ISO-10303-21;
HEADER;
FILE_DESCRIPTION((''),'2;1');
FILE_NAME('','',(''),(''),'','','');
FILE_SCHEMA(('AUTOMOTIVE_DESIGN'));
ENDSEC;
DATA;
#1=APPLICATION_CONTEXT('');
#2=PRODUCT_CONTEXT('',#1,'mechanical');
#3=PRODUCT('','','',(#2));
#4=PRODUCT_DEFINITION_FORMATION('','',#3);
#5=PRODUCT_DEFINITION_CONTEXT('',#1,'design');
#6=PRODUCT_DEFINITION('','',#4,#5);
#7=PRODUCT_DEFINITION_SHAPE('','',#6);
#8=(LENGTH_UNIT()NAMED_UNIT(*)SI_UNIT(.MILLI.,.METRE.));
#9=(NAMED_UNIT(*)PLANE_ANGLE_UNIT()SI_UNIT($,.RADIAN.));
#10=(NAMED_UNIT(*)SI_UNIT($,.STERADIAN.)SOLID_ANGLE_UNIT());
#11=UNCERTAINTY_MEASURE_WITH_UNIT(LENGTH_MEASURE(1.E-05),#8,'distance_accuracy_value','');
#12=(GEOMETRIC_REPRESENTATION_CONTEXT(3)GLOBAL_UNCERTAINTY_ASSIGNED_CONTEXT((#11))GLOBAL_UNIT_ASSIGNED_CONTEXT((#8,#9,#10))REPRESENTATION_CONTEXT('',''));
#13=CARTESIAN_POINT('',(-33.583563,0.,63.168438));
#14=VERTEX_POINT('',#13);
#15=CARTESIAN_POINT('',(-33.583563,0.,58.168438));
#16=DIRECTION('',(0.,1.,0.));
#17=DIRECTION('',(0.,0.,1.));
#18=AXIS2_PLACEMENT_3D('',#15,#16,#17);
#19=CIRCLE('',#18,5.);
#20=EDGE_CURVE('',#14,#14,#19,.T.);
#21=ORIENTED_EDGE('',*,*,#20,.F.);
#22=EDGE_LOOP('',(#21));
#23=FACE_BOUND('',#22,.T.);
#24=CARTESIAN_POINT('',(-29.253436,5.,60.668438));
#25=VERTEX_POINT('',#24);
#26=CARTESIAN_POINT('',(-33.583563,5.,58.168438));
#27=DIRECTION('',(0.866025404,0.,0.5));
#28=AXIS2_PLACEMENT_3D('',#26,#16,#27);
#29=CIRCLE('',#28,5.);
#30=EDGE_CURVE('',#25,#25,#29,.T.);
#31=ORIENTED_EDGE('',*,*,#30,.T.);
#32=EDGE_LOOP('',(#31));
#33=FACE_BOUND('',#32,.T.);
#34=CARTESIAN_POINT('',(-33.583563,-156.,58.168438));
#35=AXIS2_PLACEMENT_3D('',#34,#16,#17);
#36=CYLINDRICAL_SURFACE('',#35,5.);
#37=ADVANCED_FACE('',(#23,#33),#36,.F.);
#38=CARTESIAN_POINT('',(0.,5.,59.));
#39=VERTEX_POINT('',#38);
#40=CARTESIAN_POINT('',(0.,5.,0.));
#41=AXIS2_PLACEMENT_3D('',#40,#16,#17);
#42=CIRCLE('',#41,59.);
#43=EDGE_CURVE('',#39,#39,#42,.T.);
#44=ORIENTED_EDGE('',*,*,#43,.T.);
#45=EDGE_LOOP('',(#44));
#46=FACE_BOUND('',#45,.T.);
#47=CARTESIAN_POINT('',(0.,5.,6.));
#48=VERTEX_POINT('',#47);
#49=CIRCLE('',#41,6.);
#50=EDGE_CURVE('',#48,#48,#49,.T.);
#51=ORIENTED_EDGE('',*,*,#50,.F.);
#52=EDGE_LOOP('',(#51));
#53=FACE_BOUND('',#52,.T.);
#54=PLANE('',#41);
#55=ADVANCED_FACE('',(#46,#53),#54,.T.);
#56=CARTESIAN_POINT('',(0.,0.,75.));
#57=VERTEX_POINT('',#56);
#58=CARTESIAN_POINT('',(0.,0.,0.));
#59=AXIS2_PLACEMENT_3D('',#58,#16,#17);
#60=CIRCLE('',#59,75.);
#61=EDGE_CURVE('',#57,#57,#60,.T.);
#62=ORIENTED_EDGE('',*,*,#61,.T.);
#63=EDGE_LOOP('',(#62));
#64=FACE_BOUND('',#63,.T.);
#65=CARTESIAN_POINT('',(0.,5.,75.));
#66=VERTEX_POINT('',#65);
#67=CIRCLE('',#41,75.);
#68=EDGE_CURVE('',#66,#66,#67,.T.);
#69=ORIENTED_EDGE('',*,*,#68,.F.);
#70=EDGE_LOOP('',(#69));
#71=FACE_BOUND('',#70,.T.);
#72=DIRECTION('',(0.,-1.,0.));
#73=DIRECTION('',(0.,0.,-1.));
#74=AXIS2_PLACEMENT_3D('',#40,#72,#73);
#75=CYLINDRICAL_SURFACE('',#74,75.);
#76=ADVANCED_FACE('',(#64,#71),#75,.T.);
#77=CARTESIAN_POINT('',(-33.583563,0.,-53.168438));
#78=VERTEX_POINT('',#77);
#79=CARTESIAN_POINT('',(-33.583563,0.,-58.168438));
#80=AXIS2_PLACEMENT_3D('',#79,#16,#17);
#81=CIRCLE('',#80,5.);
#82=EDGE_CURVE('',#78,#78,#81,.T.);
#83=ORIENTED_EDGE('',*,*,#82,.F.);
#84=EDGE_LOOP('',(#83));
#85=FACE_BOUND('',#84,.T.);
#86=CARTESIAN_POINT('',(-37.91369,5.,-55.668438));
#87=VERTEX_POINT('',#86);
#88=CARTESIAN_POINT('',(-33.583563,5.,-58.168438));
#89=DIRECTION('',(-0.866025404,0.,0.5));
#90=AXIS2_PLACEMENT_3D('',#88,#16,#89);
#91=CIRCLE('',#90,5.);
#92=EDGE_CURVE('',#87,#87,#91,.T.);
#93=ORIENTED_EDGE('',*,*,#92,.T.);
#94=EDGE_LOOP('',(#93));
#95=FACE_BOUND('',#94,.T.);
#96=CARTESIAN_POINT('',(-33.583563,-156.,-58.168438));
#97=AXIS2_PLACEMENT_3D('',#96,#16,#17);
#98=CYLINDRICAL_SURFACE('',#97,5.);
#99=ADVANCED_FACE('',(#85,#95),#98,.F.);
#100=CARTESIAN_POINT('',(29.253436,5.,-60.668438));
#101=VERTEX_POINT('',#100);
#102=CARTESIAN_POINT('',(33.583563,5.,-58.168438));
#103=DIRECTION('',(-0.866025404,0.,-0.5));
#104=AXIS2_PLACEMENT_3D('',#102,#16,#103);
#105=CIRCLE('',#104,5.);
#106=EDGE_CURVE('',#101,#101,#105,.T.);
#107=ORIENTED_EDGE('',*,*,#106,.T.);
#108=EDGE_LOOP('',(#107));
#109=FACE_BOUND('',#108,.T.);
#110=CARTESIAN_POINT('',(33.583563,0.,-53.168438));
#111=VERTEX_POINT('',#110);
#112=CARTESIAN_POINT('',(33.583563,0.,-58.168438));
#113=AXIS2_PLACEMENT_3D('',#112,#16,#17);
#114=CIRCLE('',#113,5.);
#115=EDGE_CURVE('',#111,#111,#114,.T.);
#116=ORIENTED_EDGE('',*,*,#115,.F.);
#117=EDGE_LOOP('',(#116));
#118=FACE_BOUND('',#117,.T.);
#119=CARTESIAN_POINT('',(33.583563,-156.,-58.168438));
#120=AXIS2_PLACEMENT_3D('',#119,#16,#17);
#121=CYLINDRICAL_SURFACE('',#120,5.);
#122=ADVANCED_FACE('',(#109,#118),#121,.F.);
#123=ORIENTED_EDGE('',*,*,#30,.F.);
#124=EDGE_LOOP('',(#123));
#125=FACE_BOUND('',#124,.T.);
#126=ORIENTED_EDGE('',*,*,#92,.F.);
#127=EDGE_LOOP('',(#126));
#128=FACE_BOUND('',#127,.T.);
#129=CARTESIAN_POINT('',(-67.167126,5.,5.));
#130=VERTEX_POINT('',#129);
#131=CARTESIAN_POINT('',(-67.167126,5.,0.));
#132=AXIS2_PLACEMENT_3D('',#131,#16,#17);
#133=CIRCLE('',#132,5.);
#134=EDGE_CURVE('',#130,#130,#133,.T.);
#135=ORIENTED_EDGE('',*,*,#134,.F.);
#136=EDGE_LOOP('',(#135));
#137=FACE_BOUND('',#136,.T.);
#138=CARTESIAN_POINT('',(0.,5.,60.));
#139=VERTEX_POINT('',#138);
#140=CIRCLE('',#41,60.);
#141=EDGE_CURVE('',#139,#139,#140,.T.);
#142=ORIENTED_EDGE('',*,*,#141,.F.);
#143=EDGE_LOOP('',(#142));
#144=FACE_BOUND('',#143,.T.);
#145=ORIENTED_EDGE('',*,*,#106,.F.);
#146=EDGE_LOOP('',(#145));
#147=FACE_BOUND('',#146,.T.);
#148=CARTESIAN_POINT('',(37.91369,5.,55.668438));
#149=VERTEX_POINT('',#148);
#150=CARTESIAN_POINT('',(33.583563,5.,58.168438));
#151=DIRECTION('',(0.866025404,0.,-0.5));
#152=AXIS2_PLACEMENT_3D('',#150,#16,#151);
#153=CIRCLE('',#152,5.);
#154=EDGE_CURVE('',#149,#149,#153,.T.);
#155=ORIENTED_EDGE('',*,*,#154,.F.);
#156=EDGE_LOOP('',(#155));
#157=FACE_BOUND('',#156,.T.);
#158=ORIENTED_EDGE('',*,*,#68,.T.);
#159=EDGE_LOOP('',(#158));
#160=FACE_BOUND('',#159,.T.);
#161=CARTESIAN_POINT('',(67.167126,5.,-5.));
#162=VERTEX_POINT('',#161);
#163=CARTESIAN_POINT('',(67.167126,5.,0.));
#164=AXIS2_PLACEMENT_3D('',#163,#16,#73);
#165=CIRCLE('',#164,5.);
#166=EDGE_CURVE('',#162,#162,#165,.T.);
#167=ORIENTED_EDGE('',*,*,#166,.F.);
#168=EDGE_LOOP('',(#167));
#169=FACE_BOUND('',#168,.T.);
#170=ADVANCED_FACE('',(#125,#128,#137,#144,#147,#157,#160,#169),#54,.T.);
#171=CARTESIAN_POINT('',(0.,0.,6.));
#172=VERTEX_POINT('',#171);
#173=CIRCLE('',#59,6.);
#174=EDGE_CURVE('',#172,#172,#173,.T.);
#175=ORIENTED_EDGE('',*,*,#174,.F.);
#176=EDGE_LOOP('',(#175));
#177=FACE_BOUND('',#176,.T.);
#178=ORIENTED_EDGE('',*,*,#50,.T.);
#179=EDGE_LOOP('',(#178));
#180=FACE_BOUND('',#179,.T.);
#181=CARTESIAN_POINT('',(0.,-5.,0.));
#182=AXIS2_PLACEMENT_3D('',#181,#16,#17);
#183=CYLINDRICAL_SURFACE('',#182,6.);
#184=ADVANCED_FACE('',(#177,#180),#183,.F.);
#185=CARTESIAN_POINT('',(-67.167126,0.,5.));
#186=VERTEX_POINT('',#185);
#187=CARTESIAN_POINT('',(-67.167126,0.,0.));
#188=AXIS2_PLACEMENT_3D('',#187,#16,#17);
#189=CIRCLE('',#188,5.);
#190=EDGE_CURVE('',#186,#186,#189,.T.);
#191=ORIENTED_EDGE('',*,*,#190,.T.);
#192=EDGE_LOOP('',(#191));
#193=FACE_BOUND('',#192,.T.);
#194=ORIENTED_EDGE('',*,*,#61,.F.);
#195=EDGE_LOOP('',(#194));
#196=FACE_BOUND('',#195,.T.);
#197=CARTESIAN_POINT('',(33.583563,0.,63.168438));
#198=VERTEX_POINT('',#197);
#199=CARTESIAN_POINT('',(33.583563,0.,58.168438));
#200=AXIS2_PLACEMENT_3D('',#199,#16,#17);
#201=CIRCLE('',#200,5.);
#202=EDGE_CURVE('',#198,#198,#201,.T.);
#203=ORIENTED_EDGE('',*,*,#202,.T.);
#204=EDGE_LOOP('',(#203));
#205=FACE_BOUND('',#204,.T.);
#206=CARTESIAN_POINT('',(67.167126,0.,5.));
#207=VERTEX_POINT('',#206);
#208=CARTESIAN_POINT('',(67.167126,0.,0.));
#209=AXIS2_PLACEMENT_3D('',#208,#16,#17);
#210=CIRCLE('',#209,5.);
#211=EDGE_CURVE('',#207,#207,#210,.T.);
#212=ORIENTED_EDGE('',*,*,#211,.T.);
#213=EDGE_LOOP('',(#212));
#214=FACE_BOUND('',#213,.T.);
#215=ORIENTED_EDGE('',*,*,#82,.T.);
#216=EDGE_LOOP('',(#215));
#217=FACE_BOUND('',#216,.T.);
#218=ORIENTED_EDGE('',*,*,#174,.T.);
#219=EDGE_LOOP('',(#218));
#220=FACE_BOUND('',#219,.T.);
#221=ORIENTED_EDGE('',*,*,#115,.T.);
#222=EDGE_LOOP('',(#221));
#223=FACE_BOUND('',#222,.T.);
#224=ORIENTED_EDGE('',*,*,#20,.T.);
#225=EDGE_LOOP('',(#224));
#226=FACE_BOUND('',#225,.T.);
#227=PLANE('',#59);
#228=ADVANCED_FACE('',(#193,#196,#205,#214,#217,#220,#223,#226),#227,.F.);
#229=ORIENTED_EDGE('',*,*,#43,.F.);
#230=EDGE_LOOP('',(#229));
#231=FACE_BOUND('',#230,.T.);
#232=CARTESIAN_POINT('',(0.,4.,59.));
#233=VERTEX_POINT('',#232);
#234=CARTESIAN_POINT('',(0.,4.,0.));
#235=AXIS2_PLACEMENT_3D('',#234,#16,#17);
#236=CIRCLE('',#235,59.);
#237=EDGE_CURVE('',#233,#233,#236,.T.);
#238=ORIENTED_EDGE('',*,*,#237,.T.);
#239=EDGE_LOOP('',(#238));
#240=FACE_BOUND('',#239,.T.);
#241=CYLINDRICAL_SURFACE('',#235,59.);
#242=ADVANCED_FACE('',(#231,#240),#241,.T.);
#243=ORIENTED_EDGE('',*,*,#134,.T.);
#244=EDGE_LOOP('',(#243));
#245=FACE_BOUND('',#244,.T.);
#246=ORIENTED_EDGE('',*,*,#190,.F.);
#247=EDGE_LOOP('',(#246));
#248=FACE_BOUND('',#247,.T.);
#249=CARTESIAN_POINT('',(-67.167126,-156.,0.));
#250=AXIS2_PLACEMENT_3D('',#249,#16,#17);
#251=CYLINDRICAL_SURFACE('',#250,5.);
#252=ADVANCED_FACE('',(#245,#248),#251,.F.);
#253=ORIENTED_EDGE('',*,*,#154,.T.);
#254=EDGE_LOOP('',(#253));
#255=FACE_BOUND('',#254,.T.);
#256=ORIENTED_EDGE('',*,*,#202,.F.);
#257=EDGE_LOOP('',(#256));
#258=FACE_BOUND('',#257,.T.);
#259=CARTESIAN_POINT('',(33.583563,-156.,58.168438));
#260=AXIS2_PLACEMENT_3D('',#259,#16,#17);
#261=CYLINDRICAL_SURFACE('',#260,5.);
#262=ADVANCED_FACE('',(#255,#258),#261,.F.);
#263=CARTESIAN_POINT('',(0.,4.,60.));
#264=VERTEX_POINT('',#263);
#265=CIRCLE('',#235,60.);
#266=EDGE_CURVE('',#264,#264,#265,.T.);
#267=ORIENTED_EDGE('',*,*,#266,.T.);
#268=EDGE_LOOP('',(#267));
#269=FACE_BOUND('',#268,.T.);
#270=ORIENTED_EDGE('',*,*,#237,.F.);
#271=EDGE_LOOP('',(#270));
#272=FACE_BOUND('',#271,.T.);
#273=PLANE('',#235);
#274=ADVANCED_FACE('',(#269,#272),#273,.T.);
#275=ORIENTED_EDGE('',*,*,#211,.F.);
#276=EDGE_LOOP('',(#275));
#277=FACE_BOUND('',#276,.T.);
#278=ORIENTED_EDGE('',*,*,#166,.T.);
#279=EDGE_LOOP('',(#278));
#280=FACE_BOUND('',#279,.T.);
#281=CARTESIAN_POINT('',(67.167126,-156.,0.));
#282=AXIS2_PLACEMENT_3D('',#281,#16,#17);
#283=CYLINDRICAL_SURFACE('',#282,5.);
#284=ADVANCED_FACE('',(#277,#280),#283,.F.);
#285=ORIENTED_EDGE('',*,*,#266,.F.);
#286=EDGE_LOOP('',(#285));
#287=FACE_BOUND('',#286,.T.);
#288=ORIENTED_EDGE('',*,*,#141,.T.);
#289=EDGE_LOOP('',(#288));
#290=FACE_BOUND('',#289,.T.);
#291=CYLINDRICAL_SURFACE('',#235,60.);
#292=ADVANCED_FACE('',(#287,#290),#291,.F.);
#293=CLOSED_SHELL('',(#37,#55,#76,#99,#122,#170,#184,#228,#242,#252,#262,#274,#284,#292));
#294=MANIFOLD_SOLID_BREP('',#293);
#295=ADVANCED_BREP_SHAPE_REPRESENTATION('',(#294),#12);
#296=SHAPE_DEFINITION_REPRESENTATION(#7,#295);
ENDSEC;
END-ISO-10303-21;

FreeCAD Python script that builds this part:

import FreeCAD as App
import Part
import Sketcher
from FreeCAD import Vector

doc = App.newDocument("Part")
params = doc.addObject("Spreadsheet::Sheet", "Params")
for row, (alias, value) in enumerate([
    ("sketch1_diameter", "150 mm"),
    ("pad1_length", "5 mm"),
    ("sketch2_diameter", "120 mm"),
    ("sketch2_diameter2", "118 mm"),
    ("pocket1_length", "1 mm"),
    ("sketch3_diameter", "10 mm"),
    ("pocket2_length", "161 mm"),
    ("sketch4_diameter", "12 mm"),
    ("pocket3_length", "10 mm"),
], start=1):
    params.set(f"A{row}", alias)
    params.set(f"B{row}", "=" + value)
    params.setAlias(f"B{row}", alias)

body = doc.addObject("PartDesign::Body", "Body")

sketch1 = doc.addObject("Sketcher::SketchObject", "Sketch")
body.addObject(sketch1)
sketch1.AttachmentSupport = (doc.XZ_Plane, [""])
sketch1.MapMode = "FlatFace"
sketch1.addGeometry(Part.Circle(Vector(0, 0, 0), Vector(0, 0, 1), 75), False)
sketch1.addConstraint([
    Sketcher.Constraint("Coincident", 0, 3, -1, 1),
    Sketcher.Constraint("Diameter", 0, 150.0),
])
sketch1.setExpression("Constraints[1]", "Params.sketch1_diameter")
pad1 = doc.addObject("PartDesign::Pad", "Pad")
body.addObject(pad1)
pad1.Profile = sketch1
pad1.setExpression("Length", "Params.pad1_length")
pad1.Reversed = True

sketch2 = doc.addObject("Sketcher::SketchObject", "Sketch001")
body.addObject(sketch2)
sketch2.AttachmentSupport = (doc.XZ_Plane, [""])
sketch2.MapMode = "FlatFace"
sketch2.AttachmentOffset = App.Placement(Vector(0, 0, -5), App.Rotation())
sketch2.addGeometry([
    Part.Circle(Vector(0, 0, 0), Vector(0, 0, 1), 60),
    Part.Circle(Vector(0, 0, 0), Vector(0, 0, 1), 59),
], False)
sketch2.addConstraint([
    Sketcher.Constraint("Coincident", 0, 3, -1, 1),
    Sketcher.Constraint("Coincident", 1, 3, -1, 1),
    Sketcher.Constraint("Diameter", 0, 120.0),
    Sketcher.Constraint("Diameter", 1, 118.0),
])
sketch2.setExpression("Constraints[2]", "Params.sketch2_diameter")
sketch2.setExpression("Constraints[3]", "Params.sketch2_diameter2")
pocket1 = doc.addObject("PartDesign::Pocket", "Pocket")
body.addObject(pocket1)
pocket1.Profile = sketch2
pocket1.setExpression("Length", "Params.pocket1_length")
pocket1.Reversed = True

sketch3 = doc.addObject("Sketcher::SketchObject", "Sketch002")
body.addObject(sketch3)
sketch3.AttachmentSupport = (doc.XZ_Plane, [""])
sketch3.MapMode = "FlatFace"
sketch3.AttachmentOffset = App.Placement(Vector(0, 0, -5), App.Rotation())
sketch3.addGeometry(Part.Circle(Vector(-67, 0, 0), Vector(0, 0, 1), 5), False)
sketch3.addConstraint([
    Sketcher.Constraint("PointOnObject", 0, 3, -1),
    Sketcher.Constraint("Diameter", 0, 10.0),
    Sketcher.Constraint("DistanceX", 0, 3, -1, 1, 67.167126),
])
sketch3.setExpression("Constraints[1]", "Params.sketch3_diameter")
pocket2 = doc.addObject("PartDesign::Pocket", "Pocket001")
body.addObject(pocket2)
pocket2.Profile = sketch3
pocket2.setExpression("Length", "Params.pocket2_length")
pocket2.Reversed = True
doc.recompute()

polarpattern = doc.addObject("PartDesign::PolarPattern", "PolarPattern")
body.addObject(polarpattern)
polarpattern.Originals = [pocket2]
polarpattern.Axis = (doc.Y_Axis, [""])
polarpattern.Angle = 360
polarpattern.Occurrences = 6
body.Tip = polarpattern

sketch4 = doc.addObject("Sketcher::SketchObject", "Sketch003")
body.addObject(sketch4)
sketch4.AttachmentSupport = (doc.XZ_Plane, [""])
sketch4.MapMode = "FlatFace"
sketch4.AttachmentOffset = App.Placement(Vector(0, 0, -5), App.Rotation())
sketch4.addGeometry(Part.Circle(Vector(0, 0, 0), Vector(0, 0, 1), 6), False)
sketch4.addConstraint([
    Sketcher.Constraint("Coincident", 0, 3, -1, 1),
    Sketcher.Constraint("Diameter", 0, 12.0),
])
sketch4.setExpression("Constraints[1]", "Params.sketch4_diameter")
pocket3 = doc.addObject("PartDesign::Pocket", "Pocket002")
body.addObject(pocket3)
pocket3.Profile = sketch4
pocket3.setExpression("Length", "Params.pocket3_length")
pocket3.Reversed = True

doc.recompute()
